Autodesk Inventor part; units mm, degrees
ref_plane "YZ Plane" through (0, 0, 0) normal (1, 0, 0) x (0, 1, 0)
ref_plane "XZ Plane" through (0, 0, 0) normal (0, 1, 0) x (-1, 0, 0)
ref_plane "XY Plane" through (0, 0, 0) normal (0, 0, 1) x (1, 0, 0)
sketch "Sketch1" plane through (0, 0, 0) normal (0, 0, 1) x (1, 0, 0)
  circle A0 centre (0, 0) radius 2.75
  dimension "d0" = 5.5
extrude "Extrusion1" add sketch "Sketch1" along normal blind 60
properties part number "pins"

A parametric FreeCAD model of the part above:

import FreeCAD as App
import Part
import Sketcher

V = App.Vector
Q = App.Units.Quantity

doc = App.newDocument("Part")
body = doc.addObject("PartDesign::Body", "Body")

# Sketch on XY plane
sketch1 = doc.addObject("Sketcher::SketchObject", "Sketch")
body.addObject(sketch1)
sketch1.AttachmentSupport = (doc.XY_Plane, [""])
sketch1.MapMode = "FlatFace"
sketch1.addGeometry(Part.Circle(V(0, 0, 0), V(0, 0, 1), 2.8), False)
sketch1.addConstraint([
    Sketcher.Constraint("Coincident", 0, 3, -1, 1),
    Sketcher.Constraint("Diameter", 0, Q("5.5 mm")),
])
pad1 = doc.addObject("PartDesign::Pad", "Pad")
body.addObject(pad1)
pad1.Profile = sketch1
pad1.Length = 60

doc.recompute()
